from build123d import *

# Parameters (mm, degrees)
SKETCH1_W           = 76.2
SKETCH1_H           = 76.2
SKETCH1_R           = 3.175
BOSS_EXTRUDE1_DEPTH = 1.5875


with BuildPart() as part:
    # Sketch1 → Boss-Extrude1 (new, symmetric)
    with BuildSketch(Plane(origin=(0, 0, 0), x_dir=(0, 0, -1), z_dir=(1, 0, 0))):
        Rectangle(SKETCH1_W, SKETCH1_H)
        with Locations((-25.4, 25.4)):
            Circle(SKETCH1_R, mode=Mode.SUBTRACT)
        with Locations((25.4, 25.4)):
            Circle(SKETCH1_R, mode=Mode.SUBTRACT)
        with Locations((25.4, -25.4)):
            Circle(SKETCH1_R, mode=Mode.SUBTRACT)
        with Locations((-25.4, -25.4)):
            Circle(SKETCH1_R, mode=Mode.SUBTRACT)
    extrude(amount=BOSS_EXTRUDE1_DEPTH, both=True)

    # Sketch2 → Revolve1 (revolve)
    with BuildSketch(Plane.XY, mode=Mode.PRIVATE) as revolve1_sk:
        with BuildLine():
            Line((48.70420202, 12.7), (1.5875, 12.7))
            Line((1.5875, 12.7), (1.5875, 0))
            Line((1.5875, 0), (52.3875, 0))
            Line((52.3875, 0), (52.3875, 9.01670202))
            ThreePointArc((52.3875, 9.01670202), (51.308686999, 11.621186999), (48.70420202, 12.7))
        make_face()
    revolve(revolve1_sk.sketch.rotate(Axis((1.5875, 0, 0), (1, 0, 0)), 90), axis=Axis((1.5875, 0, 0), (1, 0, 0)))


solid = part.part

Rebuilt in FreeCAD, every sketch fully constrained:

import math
import FreeCAD as App
import Part
import Sketcher
from FreeCAD import Vector
Q = App.Units.Quantity


def add_polygon(sketch, points):
    """Adds a closed chain of lines whose ends are joined by coincident constraints."""
    first, n = sketch.GeometryCount, len(points)
    for a, b in zip(points, points[1:] + points[:1]):
        sketch.addGeometry(Part.LineSegment(App.Vector(*a, 0), App.Vector(*b, 0)), False)
    for i in range(n):
        sketch.addConstraint(Sketcher.Constraint("Coincident", first + i, 2, first + (i + 1) % n, 1))

doc = App.newDocument("Part")
body = doc.addObject("PartDesign::Body", "Body")

# Sketch on YZ plane
sketch1 = doc.addObject("Sketcher::SketchObject", "Sketch")
body.addObject(sketch1)
sketch1.AttachmentSupport = (doc.YZ_Plane, [""])
sketch1.MapMode = "FlatFace"
add_polygon(sketch1, [(38.1, 38.1), (-38.1, 38.1), (-38.1, -38.1), (38.1, -38.1)])  # lines 0-3
sketch1.addGeometry(Part.Circle(Vector(-25.4, 25.4, 0), Vector(0, 0, 1), 3.175), False)  # 4
sketch1.addGeometry(Part.Circle(Vector(-25.4, -25.4, 0), Vector(0, 0, 1), 3.175), False)  # 5
sketch1.addGeometry(Part.Circle(Vector(25.4, 25.4, 0), Vector(0, 0, 1), 3.175), False)  # 6
sketch1.addGeometry(Part.Circle(Vector(25.4, -25.4, 0), Vector(0, 0, 1), 3.175), False)  # 7
sketch1.addConstraint(Sketcher.Constraint("Horizontal", 0))
sketch1.addConstraint(Sketcher.Constraint("Vertical", 1))
sketch1.addConstraint(Sketcher.Constraint("Horizontal", 2))
sketch1.addConstraint(Sketcher.Constraint("Vertical", 3))
sketch1.addConstraint(Sketcher.Constraint("Equal", 4, 5))
sketch1.addConstraint(Sketcher.Constraint("Equal", 5, 6))
sketch1.addConstraint(Sketcher.Constraint("Equal", 6, 7))
sketch1.addConstraint(Sketcher.Constraint("Symmetric", 5, 3, 6, 3, -1, 1))
sketch1.addConstraint(Sketcher.Constraint("Symmetric", 4, 3, 7, 3, -1, 1))
sketch1.addConstraint(Sketcher.Constraint("Symmetric", 0, 2, 2, 2, -1, 1))
sketch1.addConstraint(Sketcher.Constraint("Symmetric", 4, 3, 6, 3, -2))
sketch1.addConstraint(Sketcher.Constraint("Equal", 2, 1))
sketch1.addConstraint(Sketcher.Constraint("Diameter", 4, Q("0.25 in")))
sketch1.addConstraint(Sketcher.Constraint("DistanceX", 0, 2, 0, 1, Q("3 in")))
sketch1.addConstraint(Sketcher.Constraint("DistanceX", 4, 3, -1, 1, Q("1 in")))
sketch1.addConstraint(Sketcher.Constraint("DistanceY", -1, 1, 4, 3, Q("1 in")))
pad1 = doc.addObject("PartDesign::Pad", "Pad")
body.addObject(pad1)
pad1.Profile = sketch1
pad1.Length = Q("0.125 in")
pad1.Midplane = True

# Sketch on XY plane
sketch2 = doc.addObject("Sketcher::SketchObject", "Sketch001")
body.addObject(sketch2)
sketch2.AttachmentSupport = (doc.XY_Plane, [""])
sketch2.MapMode = "FlatFace"
sketch2.addGeometry(Part.LineSegment(Vector(48.704202, 12.7, 0), Vector(1.5875, 12.7, 0)), False)
sketch2.addGeometry(Part.LineSegment(Vector(1.5875, 12.7, 0), Vector(1.5875, 0, 0)), False)
sketch2.addGeometry(Part.LineSegment(Vector(1.5875, 0, 0), Vector(52.3875, 0, 0)), False)
sketch2.addGeometry(Part.LineSegment(Vector(52.3875, 0, 0), Vector(52.3875, 9.016702, 0)), False)
sketch2.addGeometry(Part.ArcOfCircle(Part.Circle(Vector(48.704202, 9.016702, 0), Vector(0, 0, 1), 3.683298), math.radians(0), math.radians(90)), False)
sketch2.addConstraint(Sketcher.Constraint("Coincident", 0, 2, 1, 1))
sketch2.addConstraint(Sketcher.Constraint("Coincident", 1, 2, 2, 1))
sketch2.addConstraint(Sketcher.Constraint("Coincident", 2, 2, 3, 1))
sketch2.addConstraint(Sketcher.Constraint("Tangent", 3, 2, 4, 1))
sketch2.addConstraint(Sketcher.Constraint("Tangent", 4, 2, 0, 1))
sketch2.addConstraint(Sketcher.Constraint("Horizontal", 0))
sketch2.addConstraint(Sketcher.Constraint("Vertical", 1))
sketch2.addConstraint(Sketcher.Constraint("Horizontal", 2))
sketch2.addConstraint(Sketcher.Constraint("Vertical", 3))
sketch2.addConstraint(Sketcher.Constraint("PointOnObject", 1, 2, -1))
sketch2.addConstraint(Sketcher.Constraint("DistanceX", 2, 1, 2, 2, Q("2 in")))
sketch2.addConstraint(Sketcher.Constraint("DistanceY", 1, 2, 1, 1, Q("0.5 in")))
sketch2.addConstraint(Sketcher.Constraint("DistanceX", -1, 1, 0, 2, Q("0.0625 in")))
sketch2.addConstraint(Sketcher.Constraint("Radius", 4, 3.683298))
revolution = doc.addObject("PartDesign::Revolution", "Revolution")
body.addObject(revolution)
revolution.Profile = sketch2
revolution.ReferenceAxis = (sketch2, ["H_Axis"])
revolution.Angle = 360

doc.recompute()
